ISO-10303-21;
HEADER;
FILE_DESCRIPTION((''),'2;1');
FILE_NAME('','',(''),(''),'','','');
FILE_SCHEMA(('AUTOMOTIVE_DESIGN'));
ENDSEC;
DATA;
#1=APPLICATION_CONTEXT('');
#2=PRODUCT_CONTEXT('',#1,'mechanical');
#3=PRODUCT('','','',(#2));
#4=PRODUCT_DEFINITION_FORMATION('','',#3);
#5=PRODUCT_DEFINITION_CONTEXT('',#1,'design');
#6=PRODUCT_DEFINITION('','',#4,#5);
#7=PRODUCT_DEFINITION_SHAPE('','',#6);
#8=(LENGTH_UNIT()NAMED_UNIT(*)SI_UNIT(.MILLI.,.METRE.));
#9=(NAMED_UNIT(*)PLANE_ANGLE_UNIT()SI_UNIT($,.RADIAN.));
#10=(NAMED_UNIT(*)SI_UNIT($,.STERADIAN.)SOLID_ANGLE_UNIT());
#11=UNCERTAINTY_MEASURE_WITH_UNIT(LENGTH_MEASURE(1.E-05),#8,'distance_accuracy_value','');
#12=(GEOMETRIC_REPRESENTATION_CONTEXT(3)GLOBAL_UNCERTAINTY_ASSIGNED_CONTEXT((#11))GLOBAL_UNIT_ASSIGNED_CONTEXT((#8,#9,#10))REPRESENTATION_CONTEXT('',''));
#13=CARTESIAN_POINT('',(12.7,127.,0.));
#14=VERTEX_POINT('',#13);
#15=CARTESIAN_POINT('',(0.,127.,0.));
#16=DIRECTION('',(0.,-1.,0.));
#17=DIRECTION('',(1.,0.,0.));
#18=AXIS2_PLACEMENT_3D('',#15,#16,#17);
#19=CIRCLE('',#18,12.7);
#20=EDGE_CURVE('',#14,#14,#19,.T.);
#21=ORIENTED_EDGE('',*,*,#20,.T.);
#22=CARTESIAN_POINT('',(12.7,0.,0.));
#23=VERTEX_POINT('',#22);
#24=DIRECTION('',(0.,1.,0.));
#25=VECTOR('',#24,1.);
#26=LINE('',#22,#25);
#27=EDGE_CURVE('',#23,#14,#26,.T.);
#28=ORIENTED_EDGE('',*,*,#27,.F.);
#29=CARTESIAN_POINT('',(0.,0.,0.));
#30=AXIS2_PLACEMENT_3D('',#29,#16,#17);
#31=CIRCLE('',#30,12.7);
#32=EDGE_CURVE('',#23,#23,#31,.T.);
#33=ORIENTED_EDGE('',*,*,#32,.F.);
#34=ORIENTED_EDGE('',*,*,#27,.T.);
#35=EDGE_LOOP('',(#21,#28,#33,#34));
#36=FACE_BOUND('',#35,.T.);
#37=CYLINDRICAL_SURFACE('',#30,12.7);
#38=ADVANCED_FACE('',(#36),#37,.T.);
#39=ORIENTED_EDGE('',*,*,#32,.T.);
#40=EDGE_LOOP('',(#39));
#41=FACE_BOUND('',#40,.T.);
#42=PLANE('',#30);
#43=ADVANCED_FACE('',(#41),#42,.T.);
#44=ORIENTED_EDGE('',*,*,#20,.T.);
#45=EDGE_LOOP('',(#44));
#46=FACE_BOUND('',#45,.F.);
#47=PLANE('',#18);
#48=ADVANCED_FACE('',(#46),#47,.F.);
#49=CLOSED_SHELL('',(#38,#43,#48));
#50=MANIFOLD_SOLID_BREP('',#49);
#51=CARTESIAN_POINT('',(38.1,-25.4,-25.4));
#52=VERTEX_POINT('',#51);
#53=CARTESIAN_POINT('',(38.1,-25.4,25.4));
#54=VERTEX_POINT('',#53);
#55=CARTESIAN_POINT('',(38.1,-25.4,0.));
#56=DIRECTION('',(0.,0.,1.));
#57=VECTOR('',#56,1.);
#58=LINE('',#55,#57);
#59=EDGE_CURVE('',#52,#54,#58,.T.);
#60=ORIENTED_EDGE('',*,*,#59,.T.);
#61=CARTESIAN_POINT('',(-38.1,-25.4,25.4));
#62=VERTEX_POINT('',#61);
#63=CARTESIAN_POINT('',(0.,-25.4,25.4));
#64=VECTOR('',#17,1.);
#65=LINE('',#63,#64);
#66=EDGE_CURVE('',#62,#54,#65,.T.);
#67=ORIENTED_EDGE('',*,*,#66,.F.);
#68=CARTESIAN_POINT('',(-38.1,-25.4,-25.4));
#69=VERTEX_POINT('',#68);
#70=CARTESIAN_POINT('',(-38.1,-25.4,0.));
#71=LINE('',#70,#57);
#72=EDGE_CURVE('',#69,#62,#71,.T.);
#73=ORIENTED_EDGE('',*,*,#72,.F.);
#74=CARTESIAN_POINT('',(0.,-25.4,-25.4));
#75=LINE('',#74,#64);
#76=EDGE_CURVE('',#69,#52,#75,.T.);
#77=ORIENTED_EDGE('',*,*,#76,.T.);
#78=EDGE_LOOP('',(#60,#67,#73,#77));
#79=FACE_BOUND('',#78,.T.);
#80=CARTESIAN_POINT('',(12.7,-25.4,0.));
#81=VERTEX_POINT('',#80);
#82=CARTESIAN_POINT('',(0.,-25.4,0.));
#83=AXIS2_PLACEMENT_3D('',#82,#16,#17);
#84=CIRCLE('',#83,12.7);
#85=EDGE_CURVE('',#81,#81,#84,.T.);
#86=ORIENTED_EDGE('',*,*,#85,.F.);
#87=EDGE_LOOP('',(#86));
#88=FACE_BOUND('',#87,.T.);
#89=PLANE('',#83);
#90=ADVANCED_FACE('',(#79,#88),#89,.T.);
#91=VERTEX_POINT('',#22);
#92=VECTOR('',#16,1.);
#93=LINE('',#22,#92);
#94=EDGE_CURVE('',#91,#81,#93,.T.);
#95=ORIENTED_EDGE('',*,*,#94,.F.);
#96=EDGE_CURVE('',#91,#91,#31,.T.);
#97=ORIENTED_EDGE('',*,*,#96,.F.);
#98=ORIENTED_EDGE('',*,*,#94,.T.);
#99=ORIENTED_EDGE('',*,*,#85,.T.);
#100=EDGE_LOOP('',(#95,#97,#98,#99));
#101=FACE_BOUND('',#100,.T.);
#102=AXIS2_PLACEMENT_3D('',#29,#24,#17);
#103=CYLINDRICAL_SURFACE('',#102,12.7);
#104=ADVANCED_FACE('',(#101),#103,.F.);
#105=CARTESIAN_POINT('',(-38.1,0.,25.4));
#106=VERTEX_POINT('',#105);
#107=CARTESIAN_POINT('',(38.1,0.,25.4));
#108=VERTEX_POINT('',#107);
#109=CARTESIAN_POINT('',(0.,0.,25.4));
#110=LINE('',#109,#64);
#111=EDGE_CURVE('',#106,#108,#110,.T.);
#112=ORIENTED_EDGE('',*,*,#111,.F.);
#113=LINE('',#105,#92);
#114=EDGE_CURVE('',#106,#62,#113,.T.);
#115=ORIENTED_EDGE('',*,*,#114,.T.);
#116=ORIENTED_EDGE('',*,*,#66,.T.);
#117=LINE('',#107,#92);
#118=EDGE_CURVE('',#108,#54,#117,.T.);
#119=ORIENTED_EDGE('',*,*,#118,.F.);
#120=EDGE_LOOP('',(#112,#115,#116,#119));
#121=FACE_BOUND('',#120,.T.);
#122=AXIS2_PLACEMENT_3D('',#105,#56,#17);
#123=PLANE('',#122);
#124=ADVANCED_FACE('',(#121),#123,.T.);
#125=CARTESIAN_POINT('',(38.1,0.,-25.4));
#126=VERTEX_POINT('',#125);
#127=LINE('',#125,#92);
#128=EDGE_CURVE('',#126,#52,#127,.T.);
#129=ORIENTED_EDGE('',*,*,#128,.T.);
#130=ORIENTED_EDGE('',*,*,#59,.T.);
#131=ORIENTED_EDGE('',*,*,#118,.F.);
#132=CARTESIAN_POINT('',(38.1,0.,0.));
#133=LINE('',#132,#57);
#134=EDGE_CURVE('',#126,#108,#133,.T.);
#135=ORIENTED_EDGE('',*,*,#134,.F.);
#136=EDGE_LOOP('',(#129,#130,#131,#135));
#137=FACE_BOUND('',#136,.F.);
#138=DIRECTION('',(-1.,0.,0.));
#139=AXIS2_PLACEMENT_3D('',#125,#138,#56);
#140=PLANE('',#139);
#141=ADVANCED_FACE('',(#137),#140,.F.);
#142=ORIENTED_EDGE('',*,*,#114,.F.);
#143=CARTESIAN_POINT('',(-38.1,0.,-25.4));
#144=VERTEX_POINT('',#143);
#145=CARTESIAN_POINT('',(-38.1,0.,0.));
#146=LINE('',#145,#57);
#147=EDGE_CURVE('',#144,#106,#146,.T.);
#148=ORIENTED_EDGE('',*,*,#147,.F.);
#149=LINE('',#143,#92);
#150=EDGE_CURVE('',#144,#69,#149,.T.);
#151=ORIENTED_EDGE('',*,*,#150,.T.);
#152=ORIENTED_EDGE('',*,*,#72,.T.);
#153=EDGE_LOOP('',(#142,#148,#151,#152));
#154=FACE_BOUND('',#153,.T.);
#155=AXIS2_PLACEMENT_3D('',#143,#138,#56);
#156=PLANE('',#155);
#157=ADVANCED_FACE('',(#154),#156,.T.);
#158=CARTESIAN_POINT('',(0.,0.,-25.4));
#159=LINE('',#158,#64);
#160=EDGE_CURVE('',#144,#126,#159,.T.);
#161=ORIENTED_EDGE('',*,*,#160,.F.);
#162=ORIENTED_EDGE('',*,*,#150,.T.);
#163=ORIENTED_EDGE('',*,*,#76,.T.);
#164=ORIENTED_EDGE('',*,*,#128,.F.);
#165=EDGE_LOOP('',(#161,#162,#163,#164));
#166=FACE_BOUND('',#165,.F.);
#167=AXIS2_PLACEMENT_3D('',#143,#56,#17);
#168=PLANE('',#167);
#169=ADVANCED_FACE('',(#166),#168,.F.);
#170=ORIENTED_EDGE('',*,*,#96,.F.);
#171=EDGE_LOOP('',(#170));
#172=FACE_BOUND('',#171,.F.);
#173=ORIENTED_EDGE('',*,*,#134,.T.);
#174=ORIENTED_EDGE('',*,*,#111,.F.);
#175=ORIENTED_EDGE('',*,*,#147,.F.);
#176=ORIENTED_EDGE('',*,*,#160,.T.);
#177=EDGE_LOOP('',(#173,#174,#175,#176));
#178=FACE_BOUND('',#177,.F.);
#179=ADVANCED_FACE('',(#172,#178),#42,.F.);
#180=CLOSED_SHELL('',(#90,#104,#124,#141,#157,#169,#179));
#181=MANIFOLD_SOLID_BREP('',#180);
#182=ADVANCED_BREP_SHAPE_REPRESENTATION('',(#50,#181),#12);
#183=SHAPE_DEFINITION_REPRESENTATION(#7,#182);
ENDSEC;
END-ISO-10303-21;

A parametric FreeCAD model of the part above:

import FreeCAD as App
import Part
import Sketcher
Q = App.Units.Quantity


def add_polygon(sketch, points):
    """Adds a closed chain of lines whose ends are joined by coincident constraints."""
    first, n = sketch.GeometryCount, len(points)
    for a, b in zip(points, points[1:] + points[:1]):
        sketch.addGeometry(Part.LineSegment(App.Vector(*a, 0), App.Vector(*b, 0)), False)
    for i in range(n):
        sketch.addConstraint(Sketcher.Constraint("Coincident", first + i, 2, first + (i + 1) % n, 1))

doc = App.newDocument("Part")
body = doc.addObject("PartDesign::Body", "Body")

sketch1 = doc.addObject("Sketcher::SketchObject", "Sketch")
body.addObject(sketch1)
sketch1.AttachmentSupport = (doc.XZ_Plane, [""])
sketch1.MapMode = "FlatFace"
add_polygon(sketch1, [(-38, 25), (-38, -25), (38, -25), (38, 25)])
sketch1.addGeometry(Part.Circle(App.Vector(0, 0, 0), App.Vector(0, 0, 1), 13), False)
sketch1.addConstraint([
    Sketcher.Constraint("Vertical", 0),
    Sketcher.Constraint("Horizontal", 1),
    Sketcher.Constraint("Vertical", 2),
    Sketcher.Constraint("Horizontal", 3),
    Sketcher.Constraint("Coincident", 4, 3, -1, 1),
    Sketcher.Constraint("Symmetric", 0, 2, 2, 2, -1, 1),
    Sketcher.Constraint("Diameter", 4, Q("1 in")),
    Sketcher.Constraint("DistanceX", 1, 1, 1, 2, Q("3 in")),
    Sketcher.Constraint("DistanceY", 0, 2, 0, 1, Q("2 in")),
])
pad1 = doc.addObject("PartDesign::Pad", "Pad")
body.addObject(pad1)
pad1.Profile = sketch1
pad1.Length = Q("1 in")
body2 = doc.addObject("PartDesign::Body", "Body001")

sketch2 = doc.addObject("Sketcher::SketchObject", "Sketch001")
body2.addObject(sketch2)
sketch2.AttachmentSupport = (doc.getObject("XZ_Plane001"), [""])
sketch2.MapMode = "FlatFace"
sketch2.addGeometry(Part.Circle(App.Vector(0, 0, 0), App.Vector(0, 0, 1), 13), False)
sketch2.addConstraint([
    Sketcher.Constraint("Coincident", 0, 3, -1, 1),
    Sketcher.Constraint("Diameter", 0, Q("1 in")),
])
pad2 = doc.addObject("PartDesign::Pad", "Pad001")
body2.addObject(pad2)
pad2.Profile = sketch2
pad2.Length = Q("5 in")
pad2.Reversed = True

doc.recompute()
